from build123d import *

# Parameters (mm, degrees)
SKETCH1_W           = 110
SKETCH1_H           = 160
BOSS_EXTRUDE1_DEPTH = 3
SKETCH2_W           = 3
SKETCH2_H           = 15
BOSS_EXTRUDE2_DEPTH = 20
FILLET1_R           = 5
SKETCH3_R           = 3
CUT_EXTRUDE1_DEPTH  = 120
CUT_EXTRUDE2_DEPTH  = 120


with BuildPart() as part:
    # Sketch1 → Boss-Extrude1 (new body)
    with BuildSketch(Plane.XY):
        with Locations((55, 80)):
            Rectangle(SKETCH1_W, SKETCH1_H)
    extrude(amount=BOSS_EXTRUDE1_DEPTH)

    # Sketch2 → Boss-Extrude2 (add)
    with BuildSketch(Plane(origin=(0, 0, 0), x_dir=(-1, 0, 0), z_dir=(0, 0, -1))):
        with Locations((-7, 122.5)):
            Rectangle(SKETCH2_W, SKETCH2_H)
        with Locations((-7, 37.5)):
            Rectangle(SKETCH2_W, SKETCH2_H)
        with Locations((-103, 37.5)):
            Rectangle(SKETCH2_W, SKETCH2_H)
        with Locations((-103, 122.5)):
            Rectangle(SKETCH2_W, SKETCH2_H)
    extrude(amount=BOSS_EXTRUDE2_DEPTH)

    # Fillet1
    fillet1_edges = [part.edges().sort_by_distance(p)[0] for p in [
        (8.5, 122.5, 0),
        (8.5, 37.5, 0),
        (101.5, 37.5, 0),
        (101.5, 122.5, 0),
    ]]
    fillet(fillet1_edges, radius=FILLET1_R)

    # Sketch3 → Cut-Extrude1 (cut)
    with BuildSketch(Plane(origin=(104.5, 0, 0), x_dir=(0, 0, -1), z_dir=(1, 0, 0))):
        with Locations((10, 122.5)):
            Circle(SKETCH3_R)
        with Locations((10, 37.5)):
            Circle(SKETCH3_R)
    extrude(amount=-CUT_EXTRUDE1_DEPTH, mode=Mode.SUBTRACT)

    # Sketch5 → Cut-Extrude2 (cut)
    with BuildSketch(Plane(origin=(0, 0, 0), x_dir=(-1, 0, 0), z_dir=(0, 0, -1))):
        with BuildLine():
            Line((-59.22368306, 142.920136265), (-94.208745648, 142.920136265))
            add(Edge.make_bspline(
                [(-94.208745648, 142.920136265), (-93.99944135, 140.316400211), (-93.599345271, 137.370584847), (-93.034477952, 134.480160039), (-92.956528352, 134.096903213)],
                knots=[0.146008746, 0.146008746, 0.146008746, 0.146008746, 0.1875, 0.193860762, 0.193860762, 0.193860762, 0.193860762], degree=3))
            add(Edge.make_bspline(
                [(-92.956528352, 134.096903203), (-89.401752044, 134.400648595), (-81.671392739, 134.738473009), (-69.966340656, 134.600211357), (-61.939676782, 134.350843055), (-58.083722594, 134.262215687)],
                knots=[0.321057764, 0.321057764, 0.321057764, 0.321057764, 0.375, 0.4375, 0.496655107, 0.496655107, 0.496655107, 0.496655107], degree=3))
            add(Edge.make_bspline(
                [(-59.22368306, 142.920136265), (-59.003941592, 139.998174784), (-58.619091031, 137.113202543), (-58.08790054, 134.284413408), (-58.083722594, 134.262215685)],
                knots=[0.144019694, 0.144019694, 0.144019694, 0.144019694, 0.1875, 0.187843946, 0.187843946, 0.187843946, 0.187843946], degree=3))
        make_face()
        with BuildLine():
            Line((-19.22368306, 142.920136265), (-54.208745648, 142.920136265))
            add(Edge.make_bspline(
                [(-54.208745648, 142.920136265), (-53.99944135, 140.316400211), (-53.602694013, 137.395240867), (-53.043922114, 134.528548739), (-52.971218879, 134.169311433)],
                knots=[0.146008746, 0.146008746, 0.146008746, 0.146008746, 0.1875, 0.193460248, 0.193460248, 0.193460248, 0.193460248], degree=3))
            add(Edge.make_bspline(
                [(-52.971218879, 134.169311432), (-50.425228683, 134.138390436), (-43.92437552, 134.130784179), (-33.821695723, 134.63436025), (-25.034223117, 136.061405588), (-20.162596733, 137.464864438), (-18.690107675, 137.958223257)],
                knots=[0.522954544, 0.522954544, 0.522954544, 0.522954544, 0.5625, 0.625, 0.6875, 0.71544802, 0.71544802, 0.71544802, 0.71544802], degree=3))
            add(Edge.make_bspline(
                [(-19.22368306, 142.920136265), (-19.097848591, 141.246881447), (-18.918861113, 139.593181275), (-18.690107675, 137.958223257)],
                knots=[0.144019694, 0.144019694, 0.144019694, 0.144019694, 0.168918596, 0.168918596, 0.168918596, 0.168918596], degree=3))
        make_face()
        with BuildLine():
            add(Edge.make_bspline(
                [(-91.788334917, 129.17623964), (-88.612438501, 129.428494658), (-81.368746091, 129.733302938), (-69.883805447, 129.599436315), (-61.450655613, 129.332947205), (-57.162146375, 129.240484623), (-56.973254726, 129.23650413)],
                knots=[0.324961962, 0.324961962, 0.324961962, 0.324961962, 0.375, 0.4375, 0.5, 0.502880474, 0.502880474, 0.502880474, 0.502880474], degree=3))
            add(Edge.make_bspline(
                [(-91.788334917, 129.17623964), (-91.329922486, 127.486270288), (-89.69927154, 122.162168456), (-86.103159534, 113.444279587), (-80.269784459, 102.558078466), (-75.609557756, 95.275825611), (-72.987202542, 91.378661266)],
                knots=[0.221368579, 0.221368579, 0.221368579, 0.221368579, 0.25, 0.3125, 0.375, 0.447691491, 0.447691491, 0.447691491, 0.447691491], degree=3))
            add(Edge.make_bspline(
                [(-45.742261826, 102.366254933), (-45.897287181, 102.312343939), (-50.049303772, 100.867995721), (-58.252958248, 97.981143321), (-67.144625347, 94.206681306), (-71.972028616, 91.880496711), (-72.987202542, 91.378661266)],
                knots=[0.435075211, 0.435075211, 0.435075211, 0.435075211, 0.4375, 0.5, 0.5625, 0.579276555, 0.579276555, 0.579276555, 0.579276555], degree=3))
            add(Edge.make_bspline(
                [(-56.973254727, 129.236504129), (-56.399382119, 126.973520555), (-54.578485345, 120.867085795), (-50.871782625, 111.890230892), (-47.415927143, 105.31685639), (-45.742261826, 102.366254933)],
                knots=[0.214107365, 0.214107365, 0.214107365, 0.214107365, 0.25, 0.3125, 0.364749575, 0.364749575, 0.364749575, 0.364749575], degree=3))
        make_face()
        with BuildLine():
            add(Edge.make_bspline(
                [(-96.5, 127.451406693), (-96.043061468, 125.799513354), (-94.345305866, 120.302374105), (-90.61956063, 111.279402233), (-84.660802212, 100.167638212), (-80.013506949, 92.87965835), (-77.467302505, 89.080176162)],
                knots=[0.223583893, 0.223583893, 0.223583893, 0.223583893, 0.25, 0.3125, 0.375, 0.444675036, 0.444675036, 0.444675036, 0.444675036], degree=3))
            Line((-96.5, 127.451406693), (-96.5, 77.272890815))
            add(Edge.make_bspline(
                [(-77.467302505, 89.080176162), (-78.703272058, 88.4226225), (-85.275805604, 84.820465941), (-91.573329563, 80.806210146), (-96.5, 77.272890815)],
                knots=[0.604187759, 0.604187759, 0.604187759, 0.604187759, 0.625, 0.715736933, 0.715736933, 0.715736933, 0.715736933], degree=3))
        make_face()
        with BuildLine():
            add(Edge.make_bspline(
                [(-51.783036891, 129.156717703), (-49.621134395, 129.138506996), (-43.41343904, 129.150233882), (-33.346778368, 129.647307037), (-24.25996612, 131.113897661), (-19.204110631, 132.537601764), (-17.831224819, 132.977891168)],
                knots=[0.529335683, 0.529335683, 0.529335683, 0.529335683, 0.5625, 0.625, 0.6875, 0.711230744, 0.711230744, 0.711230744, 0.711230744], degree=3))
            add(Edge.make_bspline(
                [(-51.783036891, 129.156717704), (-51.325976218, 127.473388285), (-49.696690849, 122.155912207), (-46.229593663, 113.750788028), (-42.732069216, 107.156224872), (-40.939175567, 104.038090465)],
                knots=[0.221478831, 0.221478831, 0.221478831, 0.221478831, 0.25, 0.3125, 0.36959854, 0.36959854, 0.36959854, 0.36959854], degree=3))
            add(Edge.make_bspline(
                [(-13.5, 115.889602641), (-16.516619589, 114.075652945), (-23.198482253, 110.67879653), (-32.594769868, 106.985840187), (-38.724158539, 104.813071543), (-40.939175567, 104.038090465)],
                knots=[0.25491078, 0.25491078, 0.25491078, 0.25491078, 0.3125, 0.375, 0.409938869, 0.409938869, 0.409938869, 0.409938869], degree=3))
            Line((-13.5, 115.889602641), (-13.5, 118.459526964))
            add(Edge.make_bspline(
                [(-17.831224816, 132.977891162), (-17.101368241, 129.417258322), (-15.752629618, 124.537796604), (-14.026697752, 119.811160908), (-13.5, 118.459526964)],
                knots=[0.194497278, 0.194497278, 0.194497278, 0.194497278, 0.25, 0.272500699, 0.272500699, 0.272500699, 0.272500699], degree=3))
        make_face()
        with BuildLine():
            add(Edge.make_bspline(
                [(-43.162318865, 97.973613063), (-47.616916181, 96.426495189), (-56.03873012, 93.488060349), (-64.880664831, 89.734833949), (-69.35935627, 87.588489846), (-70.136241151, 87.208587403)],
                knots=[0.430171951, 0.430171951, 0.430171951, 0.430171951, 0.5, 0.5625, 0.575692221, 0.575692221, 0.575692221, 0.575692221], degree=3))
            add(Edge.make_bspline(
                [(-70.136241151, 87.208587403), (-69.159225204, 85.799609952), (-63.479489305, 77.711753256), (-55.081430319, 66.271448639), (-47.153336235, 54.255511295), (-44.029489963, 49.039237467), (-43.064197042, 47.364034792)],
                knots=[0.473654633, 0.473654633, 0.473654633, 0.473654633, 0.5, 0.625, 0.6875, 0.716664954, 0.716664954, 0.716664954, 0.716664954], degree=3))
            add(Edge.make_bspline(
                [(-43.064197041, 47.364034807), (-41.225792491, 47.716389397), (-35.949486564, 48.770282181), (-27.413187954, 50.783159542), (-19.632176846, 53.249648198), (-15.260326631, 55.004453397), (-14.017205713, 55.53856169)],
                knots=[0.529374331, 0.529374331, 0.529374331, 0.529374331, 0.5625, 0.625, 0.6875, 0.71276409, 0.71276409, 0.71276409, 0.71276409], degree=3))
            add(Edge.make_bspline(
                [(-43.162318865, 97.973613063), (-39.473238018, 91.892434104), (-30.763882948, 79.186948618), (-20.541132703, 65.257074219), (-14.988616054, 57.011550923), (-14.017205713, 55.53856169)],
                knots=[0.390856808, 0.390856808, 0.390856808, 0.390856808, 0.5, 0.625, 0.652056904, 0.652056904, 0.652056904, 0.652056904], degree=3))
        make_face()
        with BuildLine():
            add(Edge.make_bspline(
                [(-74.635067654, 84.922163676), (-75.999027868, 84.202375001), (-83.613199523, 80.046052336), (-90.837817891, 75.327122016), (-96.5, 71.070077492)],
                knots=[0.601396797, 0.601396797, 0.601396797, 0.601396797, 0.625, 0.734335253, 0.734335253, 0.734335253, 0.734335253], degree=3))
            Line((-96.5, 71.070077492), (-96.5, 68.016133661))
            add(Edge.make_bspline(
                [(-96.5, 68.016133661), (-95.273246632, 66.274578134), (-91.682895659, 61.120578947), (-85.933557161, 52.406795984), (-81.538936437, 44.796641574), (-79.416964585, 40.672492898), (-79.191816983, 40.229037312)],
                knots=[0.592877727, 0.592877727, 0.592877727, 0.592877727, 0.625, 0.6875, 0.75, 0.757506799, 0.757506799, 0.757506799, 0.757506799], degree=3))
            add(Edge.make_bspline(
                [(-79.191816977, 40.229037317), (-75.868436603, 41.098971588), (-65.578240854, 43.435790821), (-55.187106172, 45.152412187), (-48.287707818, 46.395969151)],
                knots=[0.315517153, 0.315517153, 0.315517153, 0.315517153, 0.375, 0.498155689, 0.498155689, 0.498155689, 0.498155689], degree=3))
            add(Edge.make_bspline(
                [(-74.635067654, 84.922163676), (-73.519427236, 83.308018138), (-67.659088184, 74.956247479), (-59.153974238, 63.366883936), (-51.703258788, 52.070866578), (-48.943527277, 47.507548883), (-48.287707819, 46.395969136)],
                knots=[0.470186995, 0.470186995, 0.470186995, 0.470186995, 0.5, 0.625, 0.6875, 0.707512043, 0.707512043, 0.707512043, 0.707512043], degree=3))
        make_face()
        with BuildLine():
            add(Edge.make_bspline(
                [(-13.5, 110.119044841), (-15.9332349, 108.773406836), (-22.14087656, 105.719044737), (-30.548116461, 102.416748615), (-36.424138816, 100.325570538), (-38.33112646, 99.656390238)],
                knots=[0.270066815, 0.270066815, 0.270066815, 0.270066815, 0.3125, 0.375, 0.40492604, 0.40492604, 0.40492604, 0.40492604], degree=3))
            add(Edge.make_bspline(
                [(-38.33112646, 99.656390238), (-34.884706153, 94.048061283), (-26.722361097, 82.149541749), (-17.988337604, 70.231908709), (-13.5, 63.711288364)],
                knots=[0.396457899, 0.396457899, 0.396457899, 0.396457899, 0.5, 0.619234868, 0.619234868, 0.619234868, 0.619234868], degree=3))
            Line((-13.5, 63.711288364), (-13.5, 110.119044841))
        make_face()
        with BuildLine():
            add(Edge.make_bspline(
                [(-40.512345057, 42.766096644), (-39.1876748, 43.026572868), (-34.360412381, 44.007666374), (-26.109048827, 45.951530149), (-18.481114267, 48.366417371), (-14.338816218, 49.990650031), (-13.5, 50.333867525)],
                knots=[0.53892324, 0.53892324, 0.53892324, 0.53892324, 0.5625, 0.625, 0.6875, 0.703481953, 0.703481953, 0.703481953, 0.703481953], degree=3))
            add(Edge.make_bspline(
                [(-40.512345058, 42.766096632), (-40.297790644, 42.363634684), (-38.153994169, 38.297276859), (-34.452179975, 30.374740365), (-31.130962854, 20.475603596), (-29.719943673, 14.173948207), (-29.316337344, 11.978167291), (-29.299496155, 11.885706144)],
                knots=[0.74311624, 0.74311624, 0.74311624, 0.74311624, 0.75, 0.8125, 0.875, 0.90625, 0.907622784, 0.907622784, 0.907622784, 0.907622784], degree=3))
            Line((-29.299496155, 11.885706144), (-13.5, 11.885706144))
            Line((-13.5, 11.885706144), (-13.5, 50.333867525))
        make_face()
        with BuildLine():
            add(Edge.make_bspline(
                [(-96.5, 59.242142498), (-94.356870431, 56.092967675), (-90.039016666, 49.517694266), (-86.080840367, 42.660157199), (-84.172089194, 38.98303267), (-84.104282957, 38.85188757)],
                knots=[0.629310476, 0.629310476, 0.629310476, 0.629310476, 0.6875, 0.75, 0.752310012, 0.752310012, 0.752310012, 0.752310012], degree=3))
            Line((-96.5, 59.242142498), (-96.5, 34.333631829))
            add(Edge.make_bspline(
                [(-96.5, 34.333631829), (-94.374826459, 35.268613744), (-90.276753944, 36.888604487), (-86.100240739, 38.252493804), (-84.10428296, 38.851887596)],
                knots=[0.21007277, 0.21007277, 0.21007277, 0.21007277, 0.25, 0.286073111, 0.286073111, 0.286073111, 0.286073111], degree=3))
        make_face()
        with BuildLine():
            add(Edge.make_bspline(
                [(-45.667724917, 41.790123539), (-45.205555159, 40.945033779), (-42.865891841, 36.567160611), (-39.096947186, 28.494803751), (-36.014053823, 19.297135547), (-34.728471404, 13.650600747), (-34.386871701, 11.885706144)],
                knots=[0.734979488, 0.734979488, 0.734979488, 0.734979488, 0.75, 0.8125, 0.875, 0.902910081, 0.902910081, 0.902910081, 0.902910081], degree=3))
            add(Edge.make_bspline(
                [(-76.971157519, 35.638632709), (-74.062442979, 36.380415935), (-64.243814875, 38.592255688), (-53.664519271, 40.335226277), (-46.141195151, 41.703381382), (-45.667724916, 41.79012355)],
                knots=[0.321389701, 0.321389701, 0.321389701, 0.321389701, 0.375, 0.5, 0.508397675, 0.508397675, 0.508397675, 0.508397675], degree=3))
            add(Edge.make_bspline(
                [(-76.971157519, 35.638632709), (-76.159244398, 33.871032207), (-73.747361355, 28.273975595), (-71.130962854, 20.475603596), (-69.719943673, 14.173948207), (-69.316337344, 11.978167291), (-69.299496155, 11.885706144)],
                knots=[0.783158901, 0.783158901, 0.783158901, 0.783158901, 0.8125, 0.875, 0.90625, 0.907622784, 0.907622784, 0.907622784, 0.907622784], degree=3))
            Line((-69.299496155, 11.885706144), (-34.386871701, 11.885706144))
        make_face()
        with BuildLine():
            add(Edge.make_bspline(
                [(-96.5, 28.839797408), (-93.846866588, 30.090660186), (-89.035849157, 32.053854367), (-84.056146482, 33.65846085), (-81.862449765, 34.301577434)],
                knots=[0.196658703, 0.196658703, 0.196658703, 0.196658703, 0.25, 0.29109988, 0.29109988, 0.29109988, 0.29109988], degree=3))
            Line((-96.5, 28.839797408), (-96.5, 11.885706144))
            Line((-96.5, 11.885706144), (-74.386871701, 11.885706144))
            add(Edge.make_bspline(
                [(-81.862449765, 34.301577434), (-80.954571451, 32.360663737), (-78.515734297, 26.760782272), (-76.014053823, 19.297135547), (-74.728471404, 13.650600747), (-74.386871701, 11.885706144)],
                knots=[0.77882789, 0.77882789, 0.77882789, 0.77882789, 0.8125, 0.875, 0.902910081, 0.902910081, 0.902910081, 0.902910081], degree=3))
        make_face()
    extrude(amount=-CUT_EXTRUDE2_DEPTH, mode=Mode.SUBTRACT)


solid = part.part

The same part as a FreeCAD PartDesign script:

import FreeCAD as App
import Part
import Sketcher

V = App.Vector


def edges_at(feature, points):
    """Names of the edges that pass closest to the given points."""
    edges = feature.Shape.Edges
    near = lambda p: min(range(len(edges)), key=lambda i: edges[i].distToShape(Part.Vertex(*p))[0])
    return sorted({f"Edge{near(p) + 1}" for p in points})

doc = App.newDocument("Part")
body = doc.addObject("PartDesign::Body", "Body")

# Sketch on XY plane
sketch1 = body.newObject("Sketcher::SketchObject", "Sketch")
sketch1.AttachmentSupport = (doc.getObject("XY_Plane"), [""])
sketch1.MapMode = "FlatFace"
sketch1.addGeometry([
    Part.LineSegment(V(0, 160, 0), V(0, 0, 0)),
    Part.LineSegment(V(0, 0, 0), V(110, 0, 0)),
    Part.LineSegment(V(110, 0, 0), V(110, 160, 0)),
    Part.LineSegment(V(110, 160, 0), V(0, 160, 0)),
], False)
sketch1.addConstraint([
    Sketcher.Constraint("Coincident", 0, 2, 1, 1),
    Sketcher.Constraint("Coincident", 1, 2, 2, 1),
    Sketcher.Constraint("Coincident", 2, 2, 3, 1),
    Sketcher.Constraint("Coincident", 3, 2, 0, 1),
    Sketcher.Constraint("Vertical", 0),
    Sketcher.Constraint("Horizontal", 1),
    Sketcher.Constraint("Vertical", 2),
    Sketcher.Constraint("Horizontal", 3),
    Sketcher.Constraint("Coincident", 0, 2, -1, 1),
    Sketcher.Constraint("DistanceX", 1, 1, 1, 2, 110.0),
    Sketcher.Constraint("DistanceY", 0, 2, 0, 1, 160.0),
])
pad1 = body.newObject("PartDesign::Pad", "Pad")
pad1.Profile = sketch1
pad1.Length = 3

# Sketch on XY plane
sketch2 = body.newObject("Sketcher::SketchObject", "Sketch001")
sketch2.AttachmentSupport = (doc.getObject("XY_Plane"), [""])
sketch2.MapMode = "FlatFace"
sketch2.addGeometry([
    Part.LineSegment(V(8.5, 130, 0), V(8.5, 115, 0)),  # 0
    Part.LineSegment(V(8.5, 115, 0), V(5.5, 115, 0)),  # 1
    Part.LineSegment(V(5.5, 115, 0), V(5.5, 130, 0)),  # 2
    Part.LineSegment(V(5.5, 130, 0), V(8.5, 130, 0)),  # 3
    Part.LineSegment(V(8.5, 45, 0), V(8.5, 30, 0)),  # 4
    Part.LineSegment(V(8.5, 30, 0), V(5.5, 30, 0)),  # 5
    Part.LineSegment(V(5.5, 30, 0), V(5.5, 45, 0)),  # 6
    Part.LineSegment(V(5.5, 45, 0), V(8.5, 45, 0)),  # 7
    Part.LineSegment(V(104.5, 45, 0), V(104.5, 30, 0)),  # 8
    Part.LineSegment(V(104.5, 30, 0), V(101.5, 30, 0)),  # 9
    Part.LineSegment(V(101.5, 30, 0), V(101.5, 45, 0)),  # 10
    Part.LineSegment(V(101.5, 45, 0), V(104.5, 45, 0)),  # 11
    Part.LineSegment(V(104.5, 130, 0), V(104.5, 115, 0)),  # 12
    Part.LineSegment(V(104.5, 115, 0), V(101.5, 115, 0)),  # 13
    Part.LineSegment(V(101.5, 115, 0), V(101.5, 130, 0)),  # 14
    Part.LineSegment(V(101.5, 130, 0), V(104.5, 130, 0)),  # 15
], False)
sketch2.addConstraint([
    Sketcher.Constraint("Coincident", 0, 2, 1, 1),
    Sketcher.Constraint("Coincident", 1, 2, 2, 1),
    Sketcher.Constraint("Coincident", 2, 2, 3, 1),
    Sketcher.Constraint("Coincident", 3, 2, 0, 1),
    Sketcher.Constraint("Coincident", 4, 2, 5, 1),
    Sketcher.Constraint("Coincident", 5, 2, 6, 1),
    Sketcher.Constraint("Coincident", 6, 2, 7, 1),
    Sketcher.Constraint("Coincident", 7, 2, 4, 1),
    Sketcher.Constraint("Coincident", 8, 2, 9, 1),
    Sketcher.Constraint("Coincident", 9, 2, 10, 1),
    Sketcher.Constraint("Coincident", 10, 2, 11, 1),
    Sketcher.Constraint("Coincident", 11, 2, 8, 1),
    Sketcher.Constraint("Coincident", 12, 2, 13, 1),
    Sketcher.Constraint("Coincident", 13, 2, 14, 1),
    Sketcher.Constraint("Coincident", 14, 2, 15, 1),
    Sketcher.Constraint("Coincident", 15, 2, 12, 1),
    Sketcher.Constraint("Vertical", 0),
    Sketcher.Constraint("Horizontal", 1),
    Sketcher.Constraint("Vertical", 2),
    Sketcher.Constraint("Horizontal", 3),
    Sketcher.Constraint("Vertical", 4),
    Sketcher.Constraint("Horizontal", 5),
    Sketcher.Constraint("Vertical", 6),
    Sketcher.Constraint("Horizontal", 7),
    Sketcher.Constraint("Vertical", 8),
    Sketcher.Constraint("Horizontal", 9),
    Sketcher.Constraint("Vertical", 10),
    Sketcher.Constraint("Horizontal", 11),
    Sketcher.Constraint("Vertical", 12),
    Sketcher.Constraint("Horizontal", 13),
    Sketcher.Constraint("Vertical", 14),
    Sketcher.Constraint("Horizontal", 15),
    Sketcher.Constraint("Horizontal", 5, 2, 8, 2),
    Sketcher.Constraint("Horizontal", 7, 2, 10, 2),
    Sketcher.Constraint("Horizontal", 1, 2, 12, 2),
    Sketcher.Constraint("Horizontal", 3, 2, 14, 2),
    Sketcher.Constraint("Vertical", 3, 2, 4, 2),
    Sketcher.Constraint("Vertical", 2, 2, 5, 2),
    Sketcher.Constraint("Vertical", 11, 2, 12, 2),
    Sketcher.Constraint("Vertical", 10, 2, 13, 2),
    Sketcher.Constraint("Equal", 7, 9),
    Sketcher.Constraint("Equal", 2, 4),
    Sketcher.Constraint("DistanceX", 1, 2, 1, 1, 3.0),
    Sketcher.Constraint("DistanceY", 0, 2, 0, 1, 15.0),
    Sketcher.Constraint("DistanceY", -1, 1, 0, 2, 115.0),
    Sketcher.Constraint("DistanceY", -1, 1, 4, 2, 30.0),
    Sketcher.Constraint("DistanceX", 4, 2, 8, 2, 96.0),
    Sketcher.Constraint("DistanceX", -1, 1, 0, 2, 8.5),
])
pad2 = body.newObject("PartDesign::Pad", "Pad001")
pad2.Profile = sketch2
pad2.Length = 20
pad2.Reversed = True
doc.recompute()

fillet = body.newObject("PartDesign::Fillet", "Fillet")
fillet.Base = (pad2, edges_at(pad2, [
    (8.5, 122.5, 0),
    (8.5, 37.5, 0),
    (101.5, 37.5, 0),
    (101.5, 122.5, 0),
]))
fillet.Radius = 5

# Sketch on YZ plane
sketch3 = body.newObject("Sketcher::SketchObject", "Sketch002")
sketch3.AttachmentSupport = (doc.getObject("YZ_Plane"), [""])
sketch3.MapMode = "FlatFace"
sketch3.AttachmentOffset = App.Placement(V(0, 0, 104.5), App.Rotation())
sketch3.addGeometry([
    Part.Circle(V(122.5, -10, 0), V(0, 0, 1), 3),
    Part.Circle(V(37.5, -10, 0), V(0, 0, 1), 3),
], False)
sketch3.addConstraint([
    Sketcher.Constraint("Equal", 0, 1),
    Sketcher.Constraint("Horizontal", 0, 3, 1, 3),
    Sketcher.Constraint("Diameter", 0, 6.0),
    Sketcher.Constraint("DistanceY", 0, 3, -1, 1, 10.0),
    Sketcher.Constraint("DistanceX", 1, 3, 0, 3, 85.0),
    Sketcher.Constraint("DistanceX", -1, 1, 0, 3, 122.5),
])
pocket1 = body.newObject("PartDesign::Pocket", "Pocket")
pocket1.Profile = sketch3
pocket1.Length = 120

# Sketch on XY plane
sketch4 = body.newObject("Sketcher::SketchObject", "Sketch003")
sketch4.AttachmentSupport = (doc.getObject("XY_Plane"), [""])
sketch4.MapMode = "FlatFace"
sketch4.addGeometry([
    Part.LineSegment(V(59.223683, 142.920136, 0), V(94.208746, 142.920136, 0)),  # 0
    Part.BSplineCurve([V(94.208746, 142.920136, 0), V(93.999441, 140.3164, 0), V(93.599345, 137.370585, 0), V(93.034478, 134.48016, 0), V(92.956528, 134.096903, 0)], [4, 1, 4], [0.146008746, 0.1875, 0.193860762], False, 3, [1, 1, 1, 1, 1], False),  # 1
    Part.BSplineCurve([V(92.956528, 134.096903, 0), V(89.401752, 134.400649, 0), V(81.671393, 134.738473, 0), V(69.966341, 134.600211, 0), V(61.939677, 134.350843, 0), V(58.083723, 134.262216, 0)], [4, 1, 1, 4], [0.321057764, 0.375, 0.4375, 0.496655107], False, 3, [1, 1, 1, 1, 1, 1], False),  # 2
    Part.BSplineCurve([V(59.223683, 142.920136, 0), V(59.003942, 139.998175, 0), V(58.619091, 137.113203, 0), V(58.087901, 134.284413, 0), V(58.083723, 134.262216, 0)], [4, 1, 4], [0.144019694, 0.1875, 0.187843946], False, 3, [1, 1, 1, 1, 1], False),  # 3
    Part.LineSegment(V(19.223683, 142.920136, 0), V(54.208746, 142.920136, 0)),  # 4
    Part.BSplineCurve([V(54.208746, 142.920136, 0), V(53.999441, 140.3164, 0), V(53.602694, 137.395241, 0), V(53.043922, 134.528549, 0), V(52.971219, 134.169311, 0)], [4, 1, 4], [0.146008746, 0.1875, 0.193460248], False, 3, [1, 1, 1, 1, 1], False),  # 5
    Part.BSplineCurve([V(52.971219, 134.169311, 0), V(50.425229, 134.13839, 0), V(43.924376, 134.130784, 0), V(33.821696, 134.63436, 0), V(25.034223, 136.061406, 0), V(20.162597, 137.464864, 0), V(18.690108, 137.958223, 0)], [4, 1, 1, 1, 4], [0.522954544, 0.5625, 0.625, 0.6875, 0.71544802], False, 3, [1, 1, 1, 1, 1, 1, 1], False),  # 6
    Part.BSplineCurve([V(19.223683, 142.920136, 0), V(19.097849, 141.246881, 0), V(18.918861, 139.593181, 0), V(18.690108, 137.958223, 0)], [4, 4], [0.144019694, 0.168918596], False, 3, [1, 1, 1, 1], False),  # 7
    Part.BSplineCurve([V(91.788335, 129.17624, 0), V(88.612439, 129.428495, 0), V(81.368746, 129.733303, 0), V(69.883805, 129.599436, 0), V(61.450656, 129.332947, 0), V(57.162146, 129.240485, 0), V(56.973255, 129.236504, 0)], [4, 1, 1, 1, 4], [0.324961962, 0.375, 0.4375, 0.5, 0.502880474], False, 3, [1, 1, 1, 1, 1, 1, 1], False),  # 8
    Part.BSplineCurve([V(91.788335, 129.17624, 0), V(91.329922, 127.48627, 0), V(89.699272, 122.162168, 0), V(86.10316, 113.44428, 0), V(80.269784, 102.558078, 0), V(75.609558, 95.275826, 0), V(72.987203, 91.378661, 0)], [4, 1, 1, 1, 4], [0.221368579, 0.25, 0.3125, 0.375, 0.447691491], False, 3, [1, 1, 1, 1, 1, 1, 1], False),  # 9
    Part.BSplineCurve([V(45.742262, 102.366255, 0), V(45.897287, 102.312344, 0), V(50.049304, 100.867996, 0), V(58.252958, 97.981143, 0), V(67.144625, 94.206681, 0), V(71.972029, 91.880497, 0), V(72.987203, 91.378661, 0)], [4, 1, 1, 1, 4], [0.435075211, 0.4375, 0.5, 0.5625, 0.579276555], False, 3, [1, 1, 1, 1, 1, 1, 1], False),  # 10
    Part.BSplineCurve([V(56.973255, 129.236504, 0), V(56.399382, 126.973521, 0), V(54.578485, 120.867086, 0), V(50.871783, 111.890231, 0), V(47.415927, 105.316856, 0), V(45.742262, 102.366255, 0)], [4, 1, 1, 4], [0.214107365, 0.25, 0.3125, 0.364749575], False, 3, [1, 1, 1, 1, 1, 1], False),  # 11
    Part.BSplineCurve([V(96.5, 127.451407, 0), V(96.043061, 125.799513, 0), V(94.345306, 120.302374, 0), V(90.619561, 111.279402, 0), V(84.660802, 100.167638, 0), V(80.013507, 92.879658, 0), V(77.467303, 89.080176, 0)], [4, 1, 1, 1, 4], [0.223583893, 0.25, 0.3125, 0.375, 0.444675036], False, 3, [1, 1, 1, 1, 1, 1, 1], False),  # 12
    Part.LineSegment(V(96.5, 127.451407, 0), V(96.5, 77.272891, 0)),  # 13
    Part.BSplineCurve([V(77.467303, 89.080176, 0), V(78.703272, 88.422623, 0), V(85.275806, 84.820466, 0), V(91.57333, 80.80621, 0), V(96.5, 77.272891, 0)], [4, 1, 4], [0.604187759, 0.625, 0.715736933], False, 3, [1, 1, 1, 1, 1], False),  # 14
    Part.BSplineCurve([V(51.783037, 129.156718, 0), V(49.621134, 129.138507, 0), V(43.413439, 129.150234, 0), V(33.346778, 129.647307, 0), V(24.259966, 131.113898, 0), V(19.204111, 132.537602, 0), V(17.831225, 132.977891, 0)], [4, 1, 1, 1, 4], [0.529335683, 0.5625, 0.625, 0.6875, 0.711230744], False, 3, [1, 1, 1, 1, 1, 1, 1], False),  # 15
    Part.BSplineCurve([V(51.783037, 129.156718, 0), V(51.325976, 127.473388, 0), V(49.696691, 122.155912, 0), V(46.229594, 113.750788, 0), V(42.732069, 107.156225, 0), V(40.939176, 104.03809, 0)], [4, 1, 1, 4], [0.221478831, 0.25, 0.3125, 0.36959854], False, 3, [1, 1, 1, 1, 1, 1], False),  # 16
    Part.BSplineCurve([V(13.5, 115.889603, 0), V(16.51662, 114.075653, 0), V(23.198482, 110.678797, 0), V(32.59477, 106.98584, 0), V(38.724159, 104.813072, 0), V(40.939176, 104.03809, 0)], [4, 1, 1, 4], [0.25491078, 0.3125, 0.375, 0.409938869], False, 3, [1, 1, 1, 1, 1, 1], False),  # 17
    Part.LineSegment(V(13.5, 115.889603, 0), V(13.5, 118.459527, 0)),  # 18
    Part.BSplineCurve([V(17.831225, 132.977891, 0), V(17.101368, 129.417258, 0), V(15.75263, 124.537797, 0), V(14.026698, 119.811161, 0), V(13.5, 118.459527, 0)], [4, 1, 4], [0.194497278, 0.25, 0.272500699], False, 3, [1, 1, 1, 1, 1], False),  # 19
    Part.BSplineCurve([V(43.162319, 97.973613, 0), V(47.616916, 96.426495, 0), V(56.03873, 93.48806, 0), V(64.880665, 89.734834, 0), V(69.359356, 87.58849, 0), V(70.136241, 87.208587, 0)], [4, 1, 1, 4], [0.430171951, 0.5, 0.5625, 0.575692221], False, 3, [1, 1, 1, 1, 1, 1], False),  # 20
    Part.BSplineCurve([V(70.136241, 87.208587, 0), V(69.159225, 85.79961, 0), V(63.479489, 77.711753, 0), V(55.08143, 66.271449, 0), V(47.153336, 54.255511, 0), V(44.02949, 49.039237, 0), V(43.064197, 47.364035, 0)], [4, 1, 1, 1, 4], [0.473654633, 0.5, 0.625, 0.6875, 0.716664954], False, 3, [1, 1, 1, 1, 1, 1, 1], False),  # 21
    Part.BSplineCurve([V(43.064197, 47.364035, 0), V(41.225792, 47.716389, 0), V(35.949487, 48.770282, 0), V(27.413188, 50.78316, 0), V(19.632177, 53.249648, 0), V(15.260327, 55.004453, 0), V(14.017206, 55.538562, 0)], [4, 1, 1, 1, 4], [0.529374331, 0.5625, 0.625, 0.6875, 0.71276409], False, 3, [1, 1, 1, 1, 1, 1, 1], False),  # 22
    Part.BSplineCurve([V(43.162319, 97.973613, 0), V(39.473238, 91.892434, 0), V(30.763883, 79.186949, 0), V(20.541133, 65.257074, 0), V(14.988616, 57.011551, 0), V(14.017206, 55.538562, 0)], [4, 1, 1, 4], [0.390856808, 0.5, 0.625, 0.652056904], False, 3, [1, 1, 1, 1, 1, 1], False),  # 23
    Part.BSplineCurve([V(74.635068, 84.922164, 0), V(75.999028, 84.202375, 0), V(83.6132, 80.046052, 0), V(90.837818, 75.327122, 0), V(96.5, 71.070077, 0)], [4, 1, 4], [0.601396797, 0.625, 0.734335253], False, 3, [1, 1, 1, 1, 1], False),  # 24
    Part.LineSegment(V(96.5, 71.070077, 0), V(96.5, 68.016134, 0)),  # 25
    Part.BSplineCurve([V(96.5, 68.016134, 0), V(95.273247, 66.274578, 0), V(91.682896, 61.120579, 0), V(85.933557, 52.406796, 0), V(81.538936, 44.796642, 0), V(79.416965, 40.672493, 0), V(79.191817, 40.229037, 0)], [4, 1, 1, 1, 4], [0.592877727, 0.625, 0.6875, 0.75, 0.757506799], False, 3, [1, 1, 1, 1, 1, 1, 1], False),  # 26
    Part.BSplineCurve([V(79.191817, 40.229037, 0), V(75.868437, 41.098972, 0), V(65.578241, 43.435791, 0), V(55.187106, 45.152412, 0), V(48.287708, 46.395969, 0)], [4, 1, 4], [0.315517153, 0.375, 0.498155689], False, 3, [1, 1, 1, 1, 1], False),  # 27
    Part.BSplineCurve([V(74.635068, 84.922164, 0), V(73.519427, 83.308018, 0), V(67.659088, 74.956247, 0), V(59.153974, 63.366884, 0), V(51.703259, 52.070867, 0), V(48.943527, 47.507549, 0), V(48.287708, 46.395969, 0)], [4, 1, 1, 1, 4], [0.470186995, 0.5, 0.625, 0.6875, 0.707512043], False, 3, [1, 1, 1, 1, 1, 1, 1], False),  # 28
    Part.BSplineCurve([V(13.5, 110.119045, 0), V(15.933235, 108.773407, 0), V(22.140877, 105.719045, 0), V(30.548116, 102.416749, 0), V(36.424139, 100.325571, 0), V(38.331126, 99.65639, 0)], [4, 1, 1, 4], [0.270066815, 0.3125, 0.375, 0.40492604], False, 3, [1, 1, 1, 1, 1, 1], False),  # 29
    Part.BSplineCurve([V(38.331126, 99.65639, 0), V(34.884706, 94.048061, 0), V(26.722361, 82.149542, 0), V(17.988338, 70.231909, 0), V(13.5, 63.711288, 0)], [4, 1, 4], [0.396457899, 0.5, 0.619234868], False, 3, [1, 1, 1, 1, 1], False),  # 30
    Part.LineSegment(V(13.5, 63.711288, 0), V(13.5, 110.119045, 0)),  # 31
    Part.BSplineCurve([V(40.512345, 42.766097, 0), V(39.187675, 43.026573, 0), V(34.360412, 44.007666, 0), V(26.109049, 45.95153, 0), V(18.481114, 48.366417, 0), V(14.338816, 49.99065, 0), V(13.5, 50.333868, 0)], [4, 1, 1, 1, 4], [0.53892324, 0.5625, 0.625, 0.6875, 0.703481953], False, 3, [1, 1, 1, 1, 1, 1, 1], False),  # 32
    Part.BSplineCurve([V(40.512345, 42.766097, 0), V(40.297791, 42.363635, 0), V(38.153994, 38.297277, 0), V(34.45218, 30.37474, 0), V(31.130963, 20.475604, 0), V(29.719944, 14.173948, 0), V(29.316337, 11.978167, 0), V(29.299496, 11.885706, 0)], [4, 1, 1, 1, 1, 4], [0.74311624, 0.75, 0.8125, 0.875, 0.90625, 0.907622784], False, 3, [1, 1, 1, 1, 1, 1, 1, 1], False),  # 33
    Part.LineSegment(V(29.299496, 11.885706, 0), V(13.5, 11.885706, 0)),  # 34
    Part.LineSegment(V(13.5, 11.885706, 0), V(13.5, 50.333868, 0)),  # 35
    Part.BSplineCurve([V(96.5, 59.242142, 0), V(94.35687, 56.092968, 0), V(90.039017, 49.517694, 0), V(86.08084, 42.660157, 0), V(84.172089, 38.983033, 0), V(84.104283, 38.851888, 0)], [4, 1, 1, 4], [0.629310476, 0.6875, 0.75, 0.752310012], False, 3, [1, 1, 1, 1, 1, 1], False),  # 36
    Part.LineSegment(V(96.5, 59.242142, 0), V(96.5, 34.333632, 0)),  # 37
    Part.BSplineCurve([V(96.5, 34.333632, 0), V(94.374826, 35.268614, 0), V(90.276754, 36.888604, 0), V(86.100241, 38.252494, 0), V(84.104283, 38.851888, 0)], [4, 1, 4], [0.21007277, 0.25, 0.286073111], False, 3, [1, 1, 1, 1, 1], False),  # 38
    Part.BSplineCurve([V(45.667725, 41.790124, 0), V(45.205555, 40.945034, 0), V(42.865892, 36.567161, 0), V(39.096947, 28.494804, 0), V(36.014054, 19.297136, 0), V(34.728471, 13.650601, 0), V(34.386872, 11.885706, 0)], [4, 1, 1, 1, 4], [0.734979488, 0.75, 0.8125, 0.875, 0.902910081], False, 3, [1, 1, 1, 1, 1, 1, 1], False),  # 39
    Part.BSplineCurve([V(76.971158, 35.638633, 0), V(74.062443, 36.380416, 0), V(64.243815, 38.592256, 0), V(53.664519, 40.335226, 0), V(46.141195, 41.703381, 0), V(45.667725, 41.790124, 0)], [4, 1, 1, 4], [0.321389701, 0.375, 0.5, 0.508397675], False, 3, [1, 1, 1, 1, 1, 1], False),  # 40
    Part.BSplineCurve([V(76.971158, 35.638633, 0), V(76.159244, 33.871032, 0), V(73.747361, 28.273976, 0), V(71.130963, 20.475604, 0), V(69.719944, 14.173948, 0), V(69.316337, 11.978167, 0), V(69.299496, 11.885706, 0)], [4, 1, 1, 1, 4], [0.783158901, 0.8125, 0.875, 0.90625, 0.907622784], False, 3, [1, 1, 1, 1, 1, 1, 1], False),  # 41
    Part.LineSegment(V(69.299496, 11.885706, 0), V(34.386872, 11.885706, 0)),  # 42
    Part.BSplineCurve([V(96.5, 28.839797, 0), V(93.846867, 30.09066, 0), V(89.035849, 32.053854, 0), V(84.056146, 33.658461, 0), V(81.86245, 34.301577, 0)], [4, 1, 4], [0.196658703, 0.25, 0.29109988], False, 3, [1, 1, 1, 1, 1], False),  # 43
    Part.LineSegment(V(96.5, 28.839797, 0), V(96.5, 11.885706, 0)),  # 44
    Part.LineSegment(V(96.5, 11.885706, 0), V(74.386872, 11.885706, 0)),  # 45
    Part.BSplineCurve([V(81.86245, 34.301577, 0), V(80.954571, 32.360664, 0), V(78.515734, 26.760782, 0), V(76.014054, 19.297136, 0), V(74.728471, 13.650601, 0), V(74.386872, 11.885706, 0)], [4, 1, 1, 4], [0.77882789, 0.8125, 0.875, 0.902910081], False, 3, [1, 1, 1, 1, 1, 1], False),  # 46
], False)
sketch4.addConstraint([
    Sketcher.Constraint("Block", 1),
    Sketcher.Constraint("Block", 2),
    Sketcher.Constraint("Block", 3),
    Sketcher.Constraint("Block", 5),
    Sketcher.Constraint("Block", 6),
    Sketcher.Constraint("Block", 7),
    Sketcher.Constraint("Block", 8),
    Sketcher.Constraint("Block", 9),
    Sketcher.Constraint("Block", 10),
    Sketcher.Constraint("Block", 11),
    Sketcher.Constraint("Block", 12),
    Sketcher.Constraint("Block", 14),
    Sketcher.Constraint("Block", 15),
    Sketcher.Constraint("Block", 16),
    Sketcher.Constraint("Block", 17),
    Sketcher.Constraint("Block", 19),
    Sketcher.Constraint("Block", 20),
    Sketcher.Constraint("Block", 21),
    Sketcher.Constraint("Block", 22),
    Sketcher.Constraint("Block", 23),
    Sketcher.Constraint("Block", 24),
    Sketcher.Constraint("Block", 26),
    Sketcher.Constraint("Block", 27),
    Sketcher.Constraint("Block", 28),
    Sketcher.Constraint("Block", 29),
    Sketcher.Constraint("Block", 30),
    Sketcher.Constraint("Block", 32),
    Sketcher.Constraint("Block", 33),
    Sketcher.Constraint("Block", 36),
    Sketcher.Constraint("Block", 38),
    Sketcher.Constraint("Block", 39),
    Sketcher.Constraint("Block", 40),
    Sketcher.Constraint("Block", 41),
    Sketcher.Constraint("Block", 43),
    Sketcher.Constraint("Block", 46),
    Sketcher.Constraint("Coincident", 0, 2, 1, 1),
    Sketcher.Constraint("Coincident", 3, 1, 0, 1),
    Sketcher.Constraint("Coincident", 4, 2, 5, 1),
    Sketcher.Constraint("Coincident", 7, 1, 4, 1),
    Sketcher.Constraint("Coincident", 12, 1, 13, 1),
    Sketcher.Constraint("Coincident", 13, 2, 14, 2),
    Sketcher.Constraint("Coincident", 17, 1, 18, 1),
    Sketcher.Constraint("Coincident", 18, 2, 19, 2),
    Sketcher.Constraint("Coincident", 24, 2, 25, 1),
    Sketcher.Constraint("Coincident", 25, 2, 26, 1),
    Sketcher.Constraint("Coincident", 30, 2, 31, 1),
    Sketcher.Constraint("Coincident", 31, 2, 29, 1),
    Sketcher.Constraint("Coincident", 33, 2, 34, 1),
    Sketcher.Constraint("Coincident", 34, 2, 35, 1),
    Sketcher.Constraint("Coincident", 35, 2, 32, 2),
    Sketcher.Constraint("Coincident", 36, 1, 37, 1),
    Sketcher.Constraint("Coincident", 37, 2, 38, 1),
    Sketcher.Constraint("Coincident", 41, 2, 42, 1),
    Sketcher.Constraint("Coincident", 42, 2, 39, 2),
    Sketcher.Constraint("Coincident", 43, 1, 44, 1),
    Sketcher.Constraint("Coincident", 44, 2, 45, 1),
    Sketcher.Constraint("Coincident", 45, 2, 46, 2),
    Sketcher.Constraint("Horizontal", 34),
    Sketcher.Constraint("Vertical", 35),
    Sketcher.Constraint("Vertical", 44),
    Sketcher.Constraint("Horizontal", 45),
])
pocket2 = body.newObject("PartDesign::Pocket", "Pocket001")
pocket2.Profile = sketch4
pocket2.Length = 120
pocket2.Reversed = True

doc.recompute()
